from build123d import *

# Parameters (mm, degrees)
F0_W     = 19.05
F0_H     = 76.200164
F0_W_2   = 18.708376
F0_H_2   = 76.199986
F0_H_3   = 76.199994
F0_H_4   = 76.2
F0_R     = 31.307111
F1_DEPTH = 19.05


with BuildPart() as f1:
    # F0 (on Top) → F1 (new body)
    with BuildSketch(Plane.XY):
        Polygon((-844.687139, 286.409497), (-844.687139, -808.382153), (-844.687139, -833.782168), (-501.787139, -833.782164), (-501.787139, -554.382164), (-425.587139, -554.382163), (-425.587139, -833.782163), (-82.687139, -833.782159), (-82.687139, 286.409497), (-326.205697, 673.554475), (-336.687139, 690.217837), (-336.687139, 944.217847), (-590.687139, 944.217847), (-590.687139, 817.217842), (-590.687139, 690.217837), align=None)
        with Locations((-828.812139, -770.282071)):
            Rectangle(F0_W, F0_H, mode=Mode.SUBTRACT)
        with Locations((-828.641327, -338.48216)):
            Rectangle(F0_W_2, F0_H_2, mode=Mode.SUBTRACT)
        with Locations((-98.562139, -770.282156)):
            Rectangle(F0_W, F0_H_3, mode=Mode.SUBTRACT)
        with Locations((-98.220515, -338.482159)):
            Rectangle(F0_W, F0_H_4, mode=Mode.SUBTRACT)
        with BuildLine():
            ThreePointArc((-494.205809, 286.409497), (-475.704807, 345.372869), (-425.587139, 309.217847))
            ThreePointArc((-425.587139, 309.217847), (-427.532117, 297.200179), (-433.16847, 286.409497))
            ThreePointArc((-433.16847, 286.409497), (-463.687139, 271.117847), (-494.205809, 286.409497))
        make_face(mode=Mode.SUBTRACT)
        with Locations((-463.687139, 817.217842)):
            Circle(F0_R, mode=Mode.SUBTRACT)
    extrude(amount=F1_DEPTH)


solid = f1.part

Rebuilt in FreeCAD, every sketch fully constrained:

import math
import FreeCAD as App
import Part
import Sketcher
Q = App.Units.Quantity


def add_polygon(sketch, points):
    """Adds a closed chain of lines whose ends are joined by coincident constraints."""
    first, n = sketch.GeometryCount, len(points)
    for a, b in zip(points, points[1:] + points[:1]):
        sketch.addGeometry(Part.LineSegment(App.Vector(*a, 0), App.Vector(*b, 0)), False)
    for i in range(n):
        sketch.addConstraint(Sketcher.Constraint("Coincident", first + i, 2, first + (i + 1) % n, 1))

doc = App.newDocument("Part")
body = doc.addObject("PartDesign::Body", "Body")

# Sketch on XY plane
sketch1 = doc.addObject("Sketcher::SketchObject", "Sketch")
body.addObject(sketch1)
sketch1.AttachmentSupport = (doc.XY_Plane, [""])
sketch1.MapMode = "FlatFace"
add_polygon(sketch1, [(-844.687139, 286.409497), (-844.687139, -833.782168), (-501.787139, -833.782164), (-501.787139, -554.382164), (-425.587139, -554.382163), (-425.587139, -833.782163), (-82.687139, -833.782159), (-82.687139, 286.409497), (-326.205697, 673.554475), (-336.687139, 690.217837), (-336.687139, 944.217847), (-590.687139, 944.217847), (-590.687139, 690.217837)])  # lines 0-12
add_polygon(sketch1, [(-819.287139, -808.382153), (-838.337139, -808.382153), (-838.337139, -732.181989), (-819.287139, -732.181989)])  # lines 13-16
add_polygon(sketch1, [(-819.287139, -376.582153), (-837.995515, -376.582153), (-837.995515, -300.382167), (-819.287139, -300.382167)])  # lines 17-20
add_polygon(sketch1, [(-89.037139, -808.382153), (-108.087139, -808.382153), (-108.087139, -732.182159), (-89.037139, -732.182159)])  # lines 21-24
add_polygon(sketch1, [(-88.695515, -376.582159), (-107.745515, -376.582159), (-107.745515, -300.382159), (-88.695515, -300.382159)])  # lines 25-28
sketch1.addGeometry(Part.ArcOfCircle(Part.Circle(App.Vector(-463.68714, 309.217848, 0), App.Vector(0, 0, 1), 38.100001), math.radians(-143.227131), math.radians(-36.772869)), False)  # 29
sketch1.addGeometry(Part.ArcOfCircle(Part.Circle(App.Vector(-463.687139, 309.217846, 0), App.Vector(0, 0, 1), 38.1), math.radians(0.000001), math.radians(216.772867)), False)  # 30
sketch1.addGeometry(Part.ArcOfCircle(Part.Circle(App.Vector(-463.687147, 309.21785, 0), App.Vector(0, 0, 1), 38.100008), math.radians(-36.772865), math.radians(-0.000004)), False)  # 31
sketch1.addGeometry(Part.Circle(App.Vector(-463.687139, 817.217842, 0), App.Vector(0, 0, 1), 31.307111), False)  # 32
sketch1.addConstraint([
    Sketcher.Constraint("Tangent", 29, 1, 30, 2),
    Sketcher.Constraint("Tangent", 30, 1, 31, 2),
    Sketcher.Constraint("Tangent", 31, 1, 29, 2),
    Sketcher.Constraint("Vertical", 0),
    Sketcher.Constraint("Vertical", 2),
    Sketcher.Constraint("Horizontal", 3),
    Sketcher.Constraint("Vertical", 4),
    Sketcher.Constraint("Vertical", 6),
    Sketcher.Constraint("Vertical", 9),
    Sketcher.Constraint("Horizontal", 10),
    Sketcher.Constraint("Vertical", 11),
    Sketcher.Constraint("Horizontal", 13),
    Sketcher.Constraint("Vertical", 14),
    Sketcher.Constraint("Horizontal", 15),
    Sketcher.Constraint("Vertical", 16),
    Sketcher.Constraint("Horizontal", 17),
    Sketcher.Constraint("Vertical", 18),
    Sketcher.Constraint("Horizontal", 19),
    Sketcher.Constraint("Vertical", 20),
    Sketcher.Constraint("Horizontal", 21),
    Sketcher.Constraint("Vertical", 22),
    Sketcher.Constraint("Horizontal", 23),
    Sketcher.Constraint("Vertical", 24),
    Sketcher.Constraint("Horizontal", 25),
    Sketcher.Constraint("Vertical", 26),
    Sketcher.Constraint("Horizontal", 27),
    Sketcher.Constraint("Vertical", 28),
    Sketcher.Constraint("Parallel", 1, 5),
    Sketcher.Constraint("Parallel", 7, 8),
    Sketcher.Constraint("Horizontal", 1, 2, 4, 2),
    Sketcher.Constraint("Horizontal", 8, 2, 11, 2),
    Sketcher.Constraint("Horizontal", 6, 2, 12, 2),
    Sketcher.Constraint("Horizontal", 16, 2, 21, 2),
    Sketcher.Constraint("Horizontal", 12, 2, 29, 1),
    Sketcher.Constraint("Horizontal", 29, 3, 30, 1),
    Sketcher.Constraint("Horizontal", 29, 1, 31, 1),
    Sketcher.Constraint("Vertical", 30, 3, 32, 3),
    Sketcher.Constraint("Vertical", 16, 2, 19, 2),
    Sketcher.Constraint("Vertical", 4, 2, 30, 1),
    Sketcher.Constraint("Equal", 15, 21),
    Sketcher.Constraint("Equal", 23, 25),
    Sketcher.Constraint("Equal", 3, 26),
    Sketcher.Constraint("Equal", 1, 5),
    Sketcher.Constraint("Radius", 29, Q("1.5 in")),
    Sketcher.Constraint("DistanceX", 3, 1, 3, 2, Q("3 in")),
    Sketcher.Constraint("DistanceX", 10, 2, 10, 1, Q("10 in")),
    Sketcher.Constraint("DistanceY", 2, 1, 2, 2, Q("11 in")),
    Sketcher.Constraint("Angle", 1, Q("0.000001 deg")),
    Sketcher.Constraint("DistanceY", 30, 3, 32, 3, Q("19.9999998 in")),
    Sketcher.Constraint("DistanceX", 0, 2, 30, 3, Q("15 in")),
    Sketcher.Constraint("DistanceX", 32, 3, 8, 2, Q("5 in")),
    Sketcher.Constraint("DistanceY", 8, 2, 32, 3, Q("5.0000002 in")),
    Sketcher.Constraint("DistanceY", 32, 3, 9, 2, Q("5.0000002 in")),
    Sketcher.Constraint("DistanceX", 0, 2, 15, 2, Q("1 in")),
    Sketcher.Constraint("DistanceY", 13, 2, 17, 2, Q("17 in")),
    Sketcher.Constraint("DistanceY", 2, 2, 18, 2, Q("9.9999999 in")),
    Sketcher.Constraint("DistanceX", 21, 2, 5, 2, Q("1 in")),
    Sketcher.Constraint("DistanceY", 5, 2, 22, 2, Q("4 in")),
    Sketcher.Constraint("DistanceY", 22, 2, 25, 2, Q("14 in")),
    Sketcher.Constraint("DistanceX", 13, 2, 13, 1, Q("0.75 in")),
    Sketcher.Constraint("Diameter", 32, Q("62.614222 mm")),
    Sketcher.Constraint("Distance", 7, Q("457.364758 mm")),
    Sketcher.Constraint("DistanceX", 17, 2, 17, 1, Q("18.708376 mm")),
    Sketcher.Constraint("DistanceY", 0, 2, 0, 1, Q("1120.191665 mm")),
    Sketcher.Constraint("DistanceY", 14, 1, 14, 2, Q("76.200164 mm")),
    Sketcher.Constraint("DistanceY", 18, 1, 18, 2, Q("76.199986 mm")),
    Sketcher.Constraint("DistanceX", 29, 3, -1, 1, Q("463.68714 mm")),
    Sketcher.Constraint("DistanceY", -1, 1, 31, 3, Q("309.21785 mm")),
    Sketcher.Constraint("DistanceY", 0, 2, -1, 1, Q("833.782168 mm")),
    Sketcher.Constraint("DistanceX", 25, 2, -1, 1, Q("107.745515 mm")),
])
pad1 = doc.addObject("PartDesign::Pad", "Pad")
body.addObject(pad1)
pad1.Profile = sketch1
pad1.Length = Q("0.75 in")

doc.recompute()
